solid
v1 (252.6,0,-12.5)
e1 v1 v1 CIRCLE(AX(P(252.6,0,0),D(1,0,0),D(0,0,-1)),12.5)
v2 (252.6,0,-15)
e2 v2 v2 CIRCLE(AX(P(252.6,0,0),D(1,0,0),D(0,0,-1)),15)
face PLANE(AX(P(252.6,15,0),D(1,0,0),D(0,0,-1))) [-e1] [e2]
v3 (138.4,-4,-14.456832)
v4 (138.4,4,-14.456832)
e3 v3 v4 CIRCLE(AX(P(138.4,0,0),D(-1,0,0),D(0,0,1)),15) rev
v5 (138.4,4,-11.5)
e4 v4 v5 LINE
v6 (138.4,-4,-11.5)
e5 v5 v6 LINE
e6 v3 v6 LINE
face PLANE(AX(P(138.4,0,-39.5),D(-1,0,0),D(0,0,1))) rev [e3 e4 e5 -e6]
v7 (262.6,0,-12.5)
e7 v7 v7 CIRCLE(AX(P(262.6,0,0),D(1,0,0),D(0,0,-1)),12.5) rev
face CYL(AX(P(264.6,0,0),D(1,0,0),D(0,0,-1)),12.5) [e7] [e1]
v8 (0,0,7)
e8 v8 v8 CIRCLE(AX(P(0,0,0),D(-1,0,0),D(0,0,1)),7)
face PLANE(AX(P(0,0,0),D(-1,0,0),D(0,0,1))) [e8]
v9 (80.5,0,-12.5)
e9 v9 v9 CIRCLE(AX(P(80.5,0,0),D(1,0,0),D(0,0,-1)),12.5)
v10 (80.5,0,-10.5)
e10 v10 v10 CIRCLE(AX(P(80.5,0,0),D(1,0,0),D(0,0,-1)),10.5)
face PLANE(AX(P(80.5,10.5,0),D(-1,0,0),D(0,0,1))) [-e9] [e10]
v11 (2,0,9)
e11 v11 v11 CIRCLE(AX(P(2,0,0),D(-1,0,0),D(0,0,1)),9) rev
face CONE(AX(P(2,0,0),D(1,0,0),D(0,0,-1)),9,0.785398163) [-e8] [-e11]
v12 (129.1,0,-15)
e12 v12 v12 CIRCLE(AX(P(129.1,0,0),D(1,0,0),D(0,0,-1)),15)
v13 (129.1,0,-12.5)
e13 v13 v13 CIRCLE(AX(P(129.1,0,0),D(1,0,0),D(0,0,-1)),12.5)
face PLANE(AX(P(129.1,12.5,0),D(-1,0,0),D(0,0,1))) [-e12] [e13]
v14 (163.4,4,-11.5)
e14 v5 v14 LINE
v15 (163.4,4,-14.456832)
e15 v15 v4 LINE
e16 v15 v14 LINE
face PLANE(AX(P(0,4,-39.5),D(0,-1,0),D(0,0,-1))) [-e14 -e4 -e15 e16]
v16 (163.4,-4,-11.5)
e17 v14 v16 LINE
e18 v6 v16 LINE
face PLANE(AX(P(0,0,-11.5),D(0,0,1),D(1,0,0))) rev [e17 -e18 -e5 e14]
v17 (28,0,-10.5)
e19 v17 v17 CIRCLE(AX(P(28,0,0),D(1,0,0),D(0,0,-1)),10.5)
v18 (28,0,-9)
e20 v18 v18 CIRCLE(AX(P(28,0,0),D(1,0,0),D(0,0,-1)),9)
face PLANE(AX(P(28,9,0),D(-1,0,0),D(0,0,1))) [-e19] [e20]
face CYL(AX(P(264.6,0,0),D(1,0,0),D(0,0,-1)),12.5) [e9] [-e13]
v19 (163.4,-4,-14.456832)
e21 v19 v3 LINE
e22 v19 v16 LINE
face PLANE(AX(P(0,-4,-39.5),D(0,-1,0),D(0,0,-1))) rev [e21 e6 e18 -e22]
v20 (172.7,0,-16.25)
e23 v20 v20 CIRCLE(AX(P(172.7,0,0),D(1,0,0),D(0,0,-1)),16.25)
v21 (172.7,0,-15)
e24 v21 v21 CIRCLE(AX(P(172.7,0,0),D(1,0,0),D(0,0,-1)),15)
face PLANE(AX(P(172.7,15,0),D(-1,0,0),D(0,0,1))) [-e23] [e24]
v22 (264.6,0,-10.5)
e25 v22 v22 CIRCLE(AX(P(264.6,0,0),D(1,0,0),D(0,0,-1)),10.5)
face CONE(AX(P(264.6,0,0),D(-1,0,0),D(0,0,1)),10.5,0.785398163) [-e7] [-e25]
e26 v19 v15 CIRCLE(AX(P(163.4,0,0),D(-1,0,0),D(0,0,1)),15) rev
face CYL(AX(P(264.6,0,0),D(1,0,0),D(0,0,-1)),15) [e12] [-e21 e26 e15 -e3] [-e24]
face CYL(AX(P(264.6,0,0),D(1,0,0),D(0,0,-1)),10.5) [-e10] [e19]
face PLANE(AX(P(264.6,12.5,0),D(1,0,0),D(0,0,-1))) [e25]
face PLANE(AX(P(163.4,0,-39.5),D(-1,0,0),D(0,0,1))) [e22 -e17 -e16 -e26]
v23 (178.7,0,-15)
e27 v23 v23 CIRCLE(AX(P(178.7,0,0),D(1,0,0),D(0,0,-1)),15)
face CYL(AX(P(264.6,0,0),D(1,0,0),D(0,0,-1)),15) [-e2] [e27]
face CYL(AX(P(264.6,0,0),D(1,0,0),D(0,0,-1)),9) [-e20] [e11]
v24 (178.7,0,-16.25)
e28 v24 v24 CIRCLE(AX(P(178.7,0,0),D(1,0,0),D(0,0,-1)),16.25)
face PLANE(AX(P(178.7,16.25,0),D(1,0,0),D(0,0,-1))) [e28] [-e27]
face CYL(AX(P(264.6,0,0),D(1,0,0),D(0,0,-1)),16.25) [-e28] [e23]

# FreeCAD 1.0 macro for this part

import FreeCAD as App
import Part
import Sketcher

V = App.Vector


def edges_at(feature, points):
    """Names of the edges that pass closest to the given points."""
    edges = feature.Shape.Edges
    near = lambda p: min(range(len(edges)), key=lambda i: edges[i].distToShape(Part.Vertex(*p))[0])
    return sorted({f"Edge{near(p) + 1}" for p in points})

doc = App.newDocument("Part")
body = doc.addObject("PartDesign::Body", "Body")

# Sketch on XY plane
sketch1 = doc.addObject("Sketcher::SketchObject", "Sketch")
body.addObject(sketch1)
sketch1.AttachmentSupport = (doc.XY_Plane, [""])
sketch1.MapMode = "FlatFace"
sketch1.addGeometry(Part.LineSegment(V(0, 9, 0), V(0, 0, 0)), False)
sketch1.addGeometry(Part.LineSegment(V(0, 0, 0), V(264.6, 0, 0)), False)
sketch1.addGeometry(Part.LineSegment(V(264.6, 0, 0), V(264.6, 12.5, 0)), False)
sketch1.addGeometry(Part.LineSegment(V(264.6, 12.5, 0), V(252.6, 12.5, 0)), False)
sketch1.addGeometry(Part.LineSegment(V(252.6, 12.5, 0), V(252.6, 15, 0)), False)
sketch1.addGeometry(Part.LineSegment(V(252.6, 15, 0), V(178.7, 15, 0)), False)
sketch1.addGeometry(Part.LineSegment(V(178.7, 15, 0), V(178.7, 16.2, 0)), False)
sketch1.addGeometry(Part.LineSegment(V(178.7, 16.2, 0), V(172.7, 16.2, 0)), False)
sketch1.addGeometry(Part.LineSegment(V(172.7, 16.2, 0), V(172.7, 15, 0)), False)
sketch1.addGeometry(Part.LineSegment(V(172.7, 15, 0), V(129.1, 15, 0)), False)
sketch1.addGeometry(Part.LineSegment(V(129.1, 15, 0), V(129.1, 12.5, 0)), False)
sketch1.addGeometry(Part.LineSegment(V(129.1, 12.5, 0), V(80.5, 12.5, 0)), False)
sketch1.addGeometry(Part.LineSegment(V(80.5, 12.5, 0), V(80.5, 10.5, 0)), False)
sketch1.addGeometry(Part.LineSegment(V(80.5, 10.5, 0), V(28, 10.5, 0)), False)
sketch1.addGeometry(Part.LineSegment(V(28, 10.5, 0), V(28, 9, 0)), False)
sketch1.addGeometry(Part.LineSegment(V(28, 9, 0), V(0, 9, 0)), False)
sketch1.addConstraint(Sketcher.Constraint("Coincident", 0, 2, 1, 1))
sketch1.addConstraint(Sketcher.Constraint("Coincident", 1, 2, 2, 1))
sketch1.addConstraint(Sketcher.Constraint("Coincident", 2, 2, 3, 1))
sketch1.addConstraint(Sketcher.Constraint("Coincident", 3, 2, 4, 1))
sketch1.addConstraint(Sketcher.Constraint("Coincident", 4, 2, 5, 1))
sketch1.addConstraint(Sketcher.Constraint("Coincident", 5, 2, 6, 1))
sketch1.addConstraint(Sketcher.Constraint("Coincident", 6, 2, 7, 1))
sketch1.addConstraint(Sketcher.Constraint("Coincident", 7, 2, 8, 1))
sketch1.addConstraint(Sketcher.Constraint("Coincident", 8, 2, 9, 1))
sketch1.addConstraint(Sketcher.Constraint("Coincident", 9, 2, 10, 1))
sketch1.addConstraint(Sketcher.Constraint("Coincident", 10, 2, 11, 1))
sketch1.addConstraint(Sketcher.Constraint("Coincident", 11, 2, 12, 1))
sketch1.addConstraint(Sketcher.Constraint("Coincident", 12, 2, 13, 1))
sketch1.addConstraint(Sketcher.Constraint("Coincident", 13, 2, 14, 1))
sketch1.addConstraint(Sketcher.Constraint("Coincident", 14, 2, 15, 1))
sketch1.addConstraint(Sketcher.Constraint("Coincident", 15, 2, 0, 1))
sketch1.addConstraint(Sketcher.Constraint("Vertical", 0))
sketch1.addConstraint(Sketcher.Constraint("Horizontal", 1))
sketch1.addConstraint(Sketcher.Constraint("Vertical", 2))
sketch1.addConstraint(Sketcher.Constraint("Horizontal", 3))
sketch1.addConstraint(Sketcher.Constraint("Vertical", 4))
sketch1.addConstraint(Sketcher.Constraint("Horizontal", 5))
sketch1.addConstraint(Sketcher.Constraint("Vertical", 6))
sketch1.addConstraint(Sketcher.Constraint("Horizontal", 7))
sketch1.addConstraint(Sketcher.Constraint("Vertical", 8))
sketch1.addConstraint(Sketcher.Constraint("Horizontal", 9))
sketch1.addConstraint(Sketcher.Constraint("Vertical", 10))
sketch1.addConstraint(Sketcher.Constraint("Horizontal", 11))
sketch1.addConstraint(Sketcher.Constraint("Vertical", 12))
sketch1.addConstraint(Sketcher.Constraint("Horizontal", 13))
sketch1.addConstraint(Sketcher.Constraint("Vertical", 14))
sketch1.addConstraint(Sketcher.Constraint("Horizontal", 15))
sketch1.addConstraint(Sketcher.Constraint("Coincident", 0, 2, -1, 1))
sketch1.addConstraint(Sketcher.Constraint("Horizontal", 5, 2, 8, 2))
sketch1.addConstraint(Sketcher.Constraint("Horizontal", 3, 2, 10, 2))
sketch1.addConstraint(Sketcher.Constraint("DistanceX", 3, 2, 3, 1, 12.0))
sketch1.addConstraint(Sketcher.Constraint("DistanceX", 7, 2, 7, 1, 6.0))
sketch1.addConstraint(Sketcher.Constraint("DistanceX", 15, 2, 15, 1, 28.0))
sketch1.addConstraint(Sketcher.Constraint("DistanceY", 0, 2, 0, 1, 9.0))
sketch1.addConstraint(Sketcher.Constraint("DistanceY", 12, 2, 12, 1, 2.0))
sketch1.addConstraint(Sketcher.Constraint("DistanceX", 1, 1, 1, 2, 264.6))
sketch1.addConstraint(Sketcher.Constraint("DistanceX", 5, 2, 5, 1, 73.9))
sketch1.addConstraint(Sketcher.Constraint("DistanceX", 9, 2, 9, 1, 43.6))
sketch1.addConstraint(Sketcher.Constraint("DistanceX", 11, 2, 11, 1, 48.6))
sketch1.addConstraint(Sketcher.Constraint("DistanceY", 2, 1, 2, 2, 12.5))
sketch1.addConstraint(Sketcher.Constraint("DistanceY", 4, 1, 4, 2, 2.5))
sketch1.addConstraint(Sketcher.Constraint("DistanceY", 6, 1, 6, 2, 1.25))
revolution = doc.addObject("PartDesign::Revolution", "Revolution")
body.addObject(revolution)
revolution.Profile = sketch1
revolution.ReferenceAxis = (sketch1, ["H_Axis"])
revolution.Angle = 360
doc.recompute()

chamfer = doc.addObject("PartDesign::Chamfer", "Chamfer")
body.addObject(chamfer)
chamfer.Base = (revolution, edges_at(revolution, [(264.6, 0, 12.5), (0, 0, 9)]))
chamfer.Size = 2

# Sketch on XY plane
sketch2 = doc.addObject("Sketcher::SketchObject", "Sketch001")
body.addObject(sketch2)
sketch2.AttachmentSupport = (doc.XY_Plane, [""])
sketch2.MapMode = "FlatFace"
sketch2.AttachmentOffset = App.Placement(V(0, 0, -11.5), App.Rotation())
sketch2.addGeometry(Part.LineSegment(V(138, -4, 0), V(163, -4, 0)), False)
sketch2.addGeometry(Part.LineSegment(V(163, -4, 0), V(163, 4, 0)), False)
sketch2.addGeometry(Part.LineSegment(V(163, 4, 0), V(138, 4, 0)), False)
sketch2.addGeometry(Part.LineSegment(V(138, 4, 0), V(138, -4, 0)), False)
sketch2.addConstraint(Sketcher.Constraint("Coincident", 0, 2, 1, 1))
sketch2.addConstraint(Sketcher.Constraint("Coincident", 1, 2, 2, 1))
sketch2.addConstraint(Sketcher.Constraint("Coincident", 2, 2, 3, 1))
sketch2.addConstraint(Sketcher.Constraint("Coincident", 3, 2, 0, 1))
sketch2.addConstraint(Sketcher.Constraint("Horizontal", 0))
sketch2.addConstraint(Sketcher.Constraint("Vertical", 1))
sketch2.addConstraint(Sketcher.Constraint("Horizontal", 2))
sketch2.addConstraint(Sketcher.Constraint("Vertical", 3))
sketch2.addConstraint(Sketcher.Constraint("DistanceX", 0, 1, 0, 2, 25.0))
sketch2.addConstraint(Sketcher.Constraint("DistanceY", 1, 1, 1, 2, 8.0))
sketch2.addConstraint(Sketcher.Constraint("DistanceY", 0, 2, -1, 1, 4.0))
sketch2.addConstraint(Sketcher.Constraint("DistanceX", -1, 1, 0, 2, 163.4))
pocket1 = doc.addObject("PartDesign::Pocket", "Pocket")
body.addObject(pocket1)
pocket1.Profile = sketch2
pocket1.Length = 28

doc.recompute()
